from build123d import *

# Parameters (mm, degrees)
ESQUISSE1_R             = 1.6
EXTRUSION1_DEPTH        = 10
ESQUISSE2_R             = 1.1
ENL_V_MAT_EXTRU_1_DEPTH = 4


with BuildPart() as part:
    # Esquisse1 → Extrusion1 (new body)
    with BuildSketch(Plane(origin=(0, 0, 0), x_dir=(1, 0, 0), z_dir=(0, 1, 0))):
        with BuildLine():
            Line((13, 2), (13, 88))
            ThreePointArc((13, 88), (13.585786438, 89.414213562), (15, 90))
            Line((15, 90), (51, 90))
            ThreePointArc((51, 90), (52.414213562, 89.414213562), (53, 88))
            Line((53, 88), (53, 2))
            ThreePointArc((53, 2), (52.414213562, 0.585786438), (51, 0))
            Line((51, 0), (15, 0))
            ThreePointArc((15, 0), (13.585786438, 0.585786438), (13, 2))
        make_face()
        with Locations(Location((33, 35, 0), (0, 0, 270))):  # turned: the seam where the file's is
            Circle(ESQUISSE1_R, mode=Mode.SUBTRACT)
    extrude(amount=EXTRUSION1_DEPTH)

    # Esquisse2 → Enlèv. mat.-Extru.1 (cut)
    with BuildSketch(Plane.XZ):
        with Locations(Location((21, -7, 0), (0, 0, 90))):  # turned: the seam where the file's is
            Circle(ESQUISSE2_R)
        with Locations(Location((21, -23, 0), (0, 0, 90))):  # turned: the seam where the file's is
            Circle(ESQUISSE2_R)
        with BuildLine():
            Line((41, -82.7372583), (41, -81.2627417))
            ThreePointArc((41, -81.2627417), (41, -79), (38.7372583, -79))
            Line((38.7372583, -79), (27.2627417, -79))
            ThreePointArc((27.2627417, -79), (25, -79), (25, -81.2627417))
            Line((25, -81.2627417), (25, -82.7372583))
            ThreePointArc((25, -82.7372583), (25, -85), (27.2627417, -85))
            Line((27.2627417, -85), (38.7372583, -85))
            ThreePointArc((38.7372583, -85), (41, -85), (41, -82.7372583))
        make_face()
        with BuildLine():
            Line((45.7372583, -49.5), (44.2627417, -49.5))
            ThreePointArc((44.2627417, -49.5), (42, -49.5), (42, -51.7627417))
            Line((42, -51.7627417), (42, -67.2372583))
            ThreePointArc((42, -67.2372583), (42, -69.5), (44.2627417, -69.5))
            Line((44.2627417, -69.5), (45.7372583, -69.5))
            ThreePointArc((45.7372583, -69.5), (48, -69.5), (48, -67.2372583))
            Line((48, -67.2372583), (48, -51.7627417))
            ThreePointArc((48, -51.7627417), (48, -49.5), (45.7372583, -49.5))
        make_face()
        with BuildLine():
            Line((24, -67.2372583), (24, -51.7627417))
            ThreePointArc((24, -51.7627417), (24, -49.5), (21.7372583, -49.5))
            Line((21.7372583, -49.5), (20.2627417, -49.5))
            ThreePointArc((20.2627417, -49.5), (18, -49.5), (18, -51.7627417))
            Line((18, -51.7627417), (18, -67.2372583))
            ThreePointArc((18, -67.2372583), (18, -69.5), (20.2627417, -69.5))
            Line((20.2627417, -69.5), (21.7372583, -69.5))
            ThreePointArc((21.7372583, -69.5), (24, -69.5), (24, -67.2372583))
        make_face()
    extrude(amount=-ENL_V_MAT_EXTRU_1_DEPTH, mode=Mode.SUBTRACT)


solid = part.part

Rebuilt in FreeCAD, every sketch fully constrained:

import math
import FreeCAD as App
import Part
import Sketcher

V = App.Vector
Q = App.Units.Quantity

doc = App.newDocument("Part")
body = doc.addObject("PartDesign::Body", "Body")

sketch1 = doc.addObject("Sketcher::SketchObject", "Sketch")
body.addObject(sketch1)
sketch1.AttachmentSupport = (doc.XZ_Plane, [""])
sketch1.MapMode = "FlatFace"
sketch1.addGeometry([
    Part.LineSegment(V(13, -88, 0), V(13, -2, 0)),
    Part.ArcOfCircle(Part.Circle(V(15, -2, 0), V(0, 0, 1), 2), math.radians(90), math.radians(180)),
    Part.LineSegment(V(15, 0, 0), V(51, 0, 0)),
    Part.ArcOfCircle(Part.Circle(V(51, -2, 0), V(0, 0, 1), 2), math.radians(0), math.radians(90)),
    Part.LineSegment(V(53, -2, 0), V(53, -88, 0)),
    Part.ArcOfCircle(Part.Circle(V(51, -88, 0), V(0, 0, 1), 2), math.radians(-90), math.radians(0)),
    Part.LineSegment(V(51, -90, 0), V(15, -90, 0)),
    Part.ArcOfCircle(Part.Circle(V(15, -88, 0), V(0, 0, 1), 2), math.radians(-180), math.radians(-90)),
    Part.Circle(V(33, -35, 0), V(0, 0, 1), 1.6),
], False)
sketch1.addConstraint([
    Sketcher.Constraint("Tangent", 0, 2, 1, 2),
    Sketcher.Constraint("Tangent", 1, 1, 2, 1),
    Sketcher.Constraint("Tangent", 2, 2, 3, 2),
    Sketcher.Constraint("Tangent", 3, 1, 4, 1),
    Sketcher.Constraint("Tangent", 4, 2, 5, 2),
    Sketcher.Constraint("Tangent", 5, 1, 6, 1),
    Sketcher.Constraint("Tangent", 6, 2, 7, 2),
    Sketcher.Constraint("Tangent", 7, 1, 0, 1),
    Sketcher.Constraint("Vertical", 0),
    Sketcher.Constraint("Horizontal", 2),
    Sketcher.Constraint("Vertical", 4),
    Sketcher.Constraint("Horizontal", 6),
    Sketcher.Constraint("Equal", 1, 3),
    Sketcher.Constraint("Equal", 3, 5),
    Sketcher.Constraint("Equal", 5, 7),
    Sketcher.Constraint("PointOnObject", 1, 1, -1),
    Sketcher.Constraint("Radius", 1, Q("2 mm")),
    Sketcher.Constraint("Diameter", 8, Q("3.2 mm")),
    Sketcher.Constraint("DistanceX", 2, 1, 2, 2, Q("36 mm")),
    Sketcher.Constraint("DistanceY", 0, 1, 0, 2, Q("86 mm")),
    Sketcher.Constraint("DistanceX", -1, 1, 1, 3, Q("15 mm")),
    Sketcher.Constraint("DistanceX", -1, 1, 8, 3, Q("33 mm")),
    Sketcher.Constraint("DistanceY", 8, 3, -1, 1, Q("35 mm")),
])
pad1 = doc.addObject("PartDesign::Pad", "Pad")
body.addObject(pad1)
pad1.Profile = sketch1
pad1.Length = 10
pad1.Reversed = True

sketch2 = doc.addObject("Sketcher::SketchObject", "Sketch001")
body.addObject(sketch2)
sketch2.AttachmentSupport = (doc.XZ_Plane, [""])
sketch2.MapMode = "FlatFace"
sketch2.addGeometry([
    Part.Circle(V(21, -7, 0), V(0, 0, 1), 1.1),
    Part.Circle(V(21, -23, 0), V(0, 0, 1), 1.1),
    Part.LineSegment(V(41, -82.7, 0), V(41, -81.3, 0)),
    Part.ArcOfCircle(Part.Circle(V(39.9, -80.1, 0), V(0, 0, 1), 1.6), math.radians(-45), math.radians(135)),
    Part.LineSegment(V(38.7, -79, 0), V(27.3, -79, 0)),
    Part.ArcOfCircle(Part.Circle(V(26.1, -80.1, 0), V(0, 0, 1), 1.6), math.radians(45), math.radians(225)),
    Part.LineSegment(V(25, -81.3, 0), V(25, -82.7, 0)),
    Part.ArcOfCircle(Part.Circle(V(26.1, -83.9, 0), V(0, 0, 1), 1.6), math.radians(135), math.radians(315)),
    Part.LineSegment(V(27.3, -85, 0), V(38.7, -85, 0)),
    Part.ArcOfCircle(Part.Circle(V(39.9, -83.9, 0), V(0, 0, 1), 1.6), math.radians(-135), math.radians(45)),
    Part.LineSegment(V(45.7, -49.5, 0), V(44.3, -49.5, 0)),
    Part.ArcOfCircle(Part.Circle(V(43.1, -50.6, 0), V(0, 0, 1), 1.6), math.radians(45), math.radians(225)),
    Part.LineSegment(V(42, -51.8, 0), V(42, -67.2, 0)),
    Part.ArcOfCircle(Part.Circle(V(43.1, -68.4, 0), V(0, 0, 1), 1.6), math.radians(135), math.radians(315)),
    Part.LineSegment(V(44.3, -69.5, 0), V(45.7, -69.5, 0)),
    Part.ArcOfCircle(Part.Circle(V(46.9, -68.4, 0), V(0, 0, 1), 1.6), math.radians(-135), math.radians(45)),
    Part.LineSegment(V(48, -67.2, 0), V(48, -51.8, 0)),
    Part.ArcOfCircle(Part.Circle(V(46.9, -50.6, 0), V(0, 0, 1), 1.6), math.radians(-45), math.radians(135)),
    Part.LineSegment(V(24, -67.2, 0), V(24, -51.8, 0)),
    Part.ArcOfCircle(Part.Circle(V(22.9, -50.6, 0), V(0, 0, 1), 1.6), math.radians(-45), math.radians(135)),
    Part.LineSegment(V(21.7, -49.5, 0), V(20.3, -49.5, 0)),
    Part.ArcOfCircle(Part.Circle(V(19.1, -50.6, 0), V(0, 0, 1), 1.6), math.radians(45), math.radians(225)),
    Part.LineSegment(V(18, -51.8, 0), V(18, -67.2, 0)),
    Part.ArcOfCircle(Part.Circle(V(19.1, -68.4, 0), V(0, 0, 1), 1.6), math.radians(135), math.radians(315)),
    Part.LineSegment(V(20.3, -69.5, 0), V(21.7, -69.5, 0)),
    Part.ArcOfCircle(Part.Circle(V(22.9, -68.4, 0), V(0, 0, 1), 1.6), math.radians(-135), math.radians(45)),
], False)
sketch2.addConstraint([
    Sketcher.Constraint("Coincident", 2, 2, 3, 1),
    Sketcher.Constraint("Coincident", 3, 2, 4, 1),
    Sketcher.Constraint("Coincident", 4, 2, 5, 1),
    Sketcher.Constraint("Coincident", 5, 2, 6, 1),
    Sketcher.Constraint("Coincident", 6, 2, 7, 1),
    Sketcher.Constraint("Coincident", 7, 2, 8, 1),
    Sketcher.Constraint("Coincident", 8, 2, 9, 1),
    Sketcher.Constraint("Coincident", 9, 2, 2, 1),
    Sketcher.Constraint("Coincident", 10, 2, 11, 1),
    Sketcher.Constraint("Coincident", 11, 2, 12, 1),
    Sketcher.Constraint("Coincident", 12, 2, 13, 1),
    Sketcher.Constraint("Coincident", 13, 2, 14, 1),
    Sketcher.Constraint("Coincident", 14, 2, 15, 1),
    Sketcher.Constraint("Coincident", 15, 2, 16, 1),
    Sketcher.Constraint("Coincident", 16, 2, 17, 1),
    Sketcher.Constraint("Coincident", 17, 2, 10, 1),
    Sketcher.Constraint("Coincident", 18, 2, 19, 1),
    Sketcher.Constraint("Coincident", 19, 2, 20, 1),
    Sketcher.Constraint("Coincident", 20, 2, 21, 1),
    Sketcher.Constraint("Coincident", 21, 2, 22, 1),
    Sketcher.Constraint("Coincident", 22, 2, 23, 1),
    Sketcher.Constraint("Coincident", 23, 2, 24, 1),
    Sketcher.Constraint("Coincident", 24, 2, 25, 1),
    Sketcher.Constraint("Coincident", 25, 2, 18, 1),
    Sketcher.Constraint("Vertical", 2),
    Sketcher.Constraint("Horizontal", 4),
    Sketcher.Constraint("Vertical", 6),
    Sketcher.Constraint("Horizontal", 8),
    Sketcher.Constraint("Horizontal", 10),
    Sketcher.Constraint("Vertical", 12),
    Sketcher.Constraint("Horizontal", 14),
    Sketcher.Constraint("Vertical", 16),
    Sketcher.Constraint("Vertical", 18),
    Sketcher.Constraint("Horizontal", 20),
    Sketcher.Constraint("Vertical", 22),
    Sketcher.Constraint("Horizontal", 24),
    Sketcher.Constraint("Equal", 0, 1),
    Sketcher.Constraint("Equal", 3, 5),
    Sketcher.Constraint("Equal", 5, 7),
    Sketcher.Constraint("Equal", 7, 9),
    Sketcher.Constraint("Equal", 9, 11),
    Sketcher.Constraint("Equal", 11, 13),
    Sketcher.Constraint("Equal", 13, 15),
    Sketcher.Constraint("Equal", 15, 17),
    Sketcher.Constraint("Equal", 17, 19),
    Sketcher.Constraint("Equal", 19, 21),
    Sketcher.Constraint("Equal", 21, 23),
    Sketcher.Constraint("Equal", 23, 25),
    Sketcher.Constraint("Horizontal", 3, 3, 5, 3),
    Sketcher.Constraint("Horizontal", 7, 3, 9, 3),
    Sketcher.Constraint("Horizontal", 13, 3, 15, 3),
    Sketcher.Constraint("Horizontal", 11, 3, 17, 3),
    Sketcher.Constraint("Horizontal", 17, 3, 19, 3),
    Sketcher.Constraint("Horizontal", 19, 3, 21, 3),
    Sketcher.Constraint("Horizontal", 15, 3, 23, 3),
    Sketcher.Constraint("Horizontal", 23, 3, 25, 3),
    Sketcher.Constraint("Horizontal", 2, 2, 5, 2),
    Sketcher.Constraint("Horizontal", 6, 2, 9, 2),
    Sketcher.Constraint("Horizontal", 12, 2, 15, 2),
    Sketcher.Constraint("Horizontal", 11, 2, 16, 2),
    Sketcher.Constraint("Horizontal", 16, 2, 18, 2),
    Sketcher.Constraint("Horizontal", 17, 2, 19, 2),
    Sketcher.Constraint("Horizontal", 18, 2, 21, 2),
    Sketcher.Constraint("Horizontal", 15, 2, 22, 2),
    Sketcher.Constraint("Horizontal", 14, 2, 23, 2),
    Sketcher.Constraint("Horizontal", 22, 2, 25, 2),
    Sketcher.Constraint("Vertical", 0, 3, 1, 3),
    Sketcher.Constraint("Vertical", 5, 3, 7, 3),
    Sketcher.Constraint("Vertical", 11, 3, 13, 3),
    Sketcher.Constraint("Vertical", 4, 2, 7, 2),
    Sketcher.Constraint("Vertical", 10, 2, 13, 2),
    Sketcher.Constraint("Equal", 14, 20),
    Sketcher.Constraint("Equal", 24, 2),
    Sketcher.Constraint("Diameter", 0, Q("2.2 mm")),
    Sketcher.Constraint("Radius", 3, Q("1.6 mm")),
    Sketcher.Constraint("DistanceX", -1, 1, 0, 3, Q("21 mm")),
    Sketcher.Constraint("DistanceY", 0, 3, -1, 1, Q("7 mm")),
    Sketcher.Constraint("DistanceY", 1, 3, -1, 1, Q("23 mm")),
    Sketcher.Constraint("DistanceX", -1, 1, 2, 2, Q("41 mm")),
    Sketcher.Constraint("DistanceY", 3, 2, -1, 1, Q("79 mm")),
    Sketcher.Constraint("DistanceX", -1, 1, 5, 2, Q("25 mm")),
    Sketcher.Constraint("DistanceY", 7, 2, -1, 1, Q("85 mm")),
    Sketcher.Constraint("DistanceX", -1, 1, 11, 2, Q("42 mm")),
    Sketcher.Constraint("DistanceX", -1, 1, 15, 2, Q("48 mm")),
    Sketcher.Constraint("DistanceX", -1, 1, 18, 2, Q("24 mm")),
    Sketcher.Constraint("DistanceX", 5, 3, 11, 3, Q("17 mm")),
    Sketcher.Constraint("DistanceX", 3, 2, 14, 2, Q("7 mm")),
    Sketcher.Constraint("DistanceY", 10, 2, -1, 1, Q("49.5 mm")),
    Sketcher.Constraint("DistanceY", 13, 2, -1, 1, Q("69.5 mm")),
    Sketcher.Constraint("DistanceX", -1, 1, 3, 3, Q("39.868629 mm")),
])
pocket1 = doc.addObject("PartDesign::Pocket", "Pocket")
body.addObject(pocket1)
pocket1.Profile = sketch2
pocket1.Length = 4

doc.recompute()
